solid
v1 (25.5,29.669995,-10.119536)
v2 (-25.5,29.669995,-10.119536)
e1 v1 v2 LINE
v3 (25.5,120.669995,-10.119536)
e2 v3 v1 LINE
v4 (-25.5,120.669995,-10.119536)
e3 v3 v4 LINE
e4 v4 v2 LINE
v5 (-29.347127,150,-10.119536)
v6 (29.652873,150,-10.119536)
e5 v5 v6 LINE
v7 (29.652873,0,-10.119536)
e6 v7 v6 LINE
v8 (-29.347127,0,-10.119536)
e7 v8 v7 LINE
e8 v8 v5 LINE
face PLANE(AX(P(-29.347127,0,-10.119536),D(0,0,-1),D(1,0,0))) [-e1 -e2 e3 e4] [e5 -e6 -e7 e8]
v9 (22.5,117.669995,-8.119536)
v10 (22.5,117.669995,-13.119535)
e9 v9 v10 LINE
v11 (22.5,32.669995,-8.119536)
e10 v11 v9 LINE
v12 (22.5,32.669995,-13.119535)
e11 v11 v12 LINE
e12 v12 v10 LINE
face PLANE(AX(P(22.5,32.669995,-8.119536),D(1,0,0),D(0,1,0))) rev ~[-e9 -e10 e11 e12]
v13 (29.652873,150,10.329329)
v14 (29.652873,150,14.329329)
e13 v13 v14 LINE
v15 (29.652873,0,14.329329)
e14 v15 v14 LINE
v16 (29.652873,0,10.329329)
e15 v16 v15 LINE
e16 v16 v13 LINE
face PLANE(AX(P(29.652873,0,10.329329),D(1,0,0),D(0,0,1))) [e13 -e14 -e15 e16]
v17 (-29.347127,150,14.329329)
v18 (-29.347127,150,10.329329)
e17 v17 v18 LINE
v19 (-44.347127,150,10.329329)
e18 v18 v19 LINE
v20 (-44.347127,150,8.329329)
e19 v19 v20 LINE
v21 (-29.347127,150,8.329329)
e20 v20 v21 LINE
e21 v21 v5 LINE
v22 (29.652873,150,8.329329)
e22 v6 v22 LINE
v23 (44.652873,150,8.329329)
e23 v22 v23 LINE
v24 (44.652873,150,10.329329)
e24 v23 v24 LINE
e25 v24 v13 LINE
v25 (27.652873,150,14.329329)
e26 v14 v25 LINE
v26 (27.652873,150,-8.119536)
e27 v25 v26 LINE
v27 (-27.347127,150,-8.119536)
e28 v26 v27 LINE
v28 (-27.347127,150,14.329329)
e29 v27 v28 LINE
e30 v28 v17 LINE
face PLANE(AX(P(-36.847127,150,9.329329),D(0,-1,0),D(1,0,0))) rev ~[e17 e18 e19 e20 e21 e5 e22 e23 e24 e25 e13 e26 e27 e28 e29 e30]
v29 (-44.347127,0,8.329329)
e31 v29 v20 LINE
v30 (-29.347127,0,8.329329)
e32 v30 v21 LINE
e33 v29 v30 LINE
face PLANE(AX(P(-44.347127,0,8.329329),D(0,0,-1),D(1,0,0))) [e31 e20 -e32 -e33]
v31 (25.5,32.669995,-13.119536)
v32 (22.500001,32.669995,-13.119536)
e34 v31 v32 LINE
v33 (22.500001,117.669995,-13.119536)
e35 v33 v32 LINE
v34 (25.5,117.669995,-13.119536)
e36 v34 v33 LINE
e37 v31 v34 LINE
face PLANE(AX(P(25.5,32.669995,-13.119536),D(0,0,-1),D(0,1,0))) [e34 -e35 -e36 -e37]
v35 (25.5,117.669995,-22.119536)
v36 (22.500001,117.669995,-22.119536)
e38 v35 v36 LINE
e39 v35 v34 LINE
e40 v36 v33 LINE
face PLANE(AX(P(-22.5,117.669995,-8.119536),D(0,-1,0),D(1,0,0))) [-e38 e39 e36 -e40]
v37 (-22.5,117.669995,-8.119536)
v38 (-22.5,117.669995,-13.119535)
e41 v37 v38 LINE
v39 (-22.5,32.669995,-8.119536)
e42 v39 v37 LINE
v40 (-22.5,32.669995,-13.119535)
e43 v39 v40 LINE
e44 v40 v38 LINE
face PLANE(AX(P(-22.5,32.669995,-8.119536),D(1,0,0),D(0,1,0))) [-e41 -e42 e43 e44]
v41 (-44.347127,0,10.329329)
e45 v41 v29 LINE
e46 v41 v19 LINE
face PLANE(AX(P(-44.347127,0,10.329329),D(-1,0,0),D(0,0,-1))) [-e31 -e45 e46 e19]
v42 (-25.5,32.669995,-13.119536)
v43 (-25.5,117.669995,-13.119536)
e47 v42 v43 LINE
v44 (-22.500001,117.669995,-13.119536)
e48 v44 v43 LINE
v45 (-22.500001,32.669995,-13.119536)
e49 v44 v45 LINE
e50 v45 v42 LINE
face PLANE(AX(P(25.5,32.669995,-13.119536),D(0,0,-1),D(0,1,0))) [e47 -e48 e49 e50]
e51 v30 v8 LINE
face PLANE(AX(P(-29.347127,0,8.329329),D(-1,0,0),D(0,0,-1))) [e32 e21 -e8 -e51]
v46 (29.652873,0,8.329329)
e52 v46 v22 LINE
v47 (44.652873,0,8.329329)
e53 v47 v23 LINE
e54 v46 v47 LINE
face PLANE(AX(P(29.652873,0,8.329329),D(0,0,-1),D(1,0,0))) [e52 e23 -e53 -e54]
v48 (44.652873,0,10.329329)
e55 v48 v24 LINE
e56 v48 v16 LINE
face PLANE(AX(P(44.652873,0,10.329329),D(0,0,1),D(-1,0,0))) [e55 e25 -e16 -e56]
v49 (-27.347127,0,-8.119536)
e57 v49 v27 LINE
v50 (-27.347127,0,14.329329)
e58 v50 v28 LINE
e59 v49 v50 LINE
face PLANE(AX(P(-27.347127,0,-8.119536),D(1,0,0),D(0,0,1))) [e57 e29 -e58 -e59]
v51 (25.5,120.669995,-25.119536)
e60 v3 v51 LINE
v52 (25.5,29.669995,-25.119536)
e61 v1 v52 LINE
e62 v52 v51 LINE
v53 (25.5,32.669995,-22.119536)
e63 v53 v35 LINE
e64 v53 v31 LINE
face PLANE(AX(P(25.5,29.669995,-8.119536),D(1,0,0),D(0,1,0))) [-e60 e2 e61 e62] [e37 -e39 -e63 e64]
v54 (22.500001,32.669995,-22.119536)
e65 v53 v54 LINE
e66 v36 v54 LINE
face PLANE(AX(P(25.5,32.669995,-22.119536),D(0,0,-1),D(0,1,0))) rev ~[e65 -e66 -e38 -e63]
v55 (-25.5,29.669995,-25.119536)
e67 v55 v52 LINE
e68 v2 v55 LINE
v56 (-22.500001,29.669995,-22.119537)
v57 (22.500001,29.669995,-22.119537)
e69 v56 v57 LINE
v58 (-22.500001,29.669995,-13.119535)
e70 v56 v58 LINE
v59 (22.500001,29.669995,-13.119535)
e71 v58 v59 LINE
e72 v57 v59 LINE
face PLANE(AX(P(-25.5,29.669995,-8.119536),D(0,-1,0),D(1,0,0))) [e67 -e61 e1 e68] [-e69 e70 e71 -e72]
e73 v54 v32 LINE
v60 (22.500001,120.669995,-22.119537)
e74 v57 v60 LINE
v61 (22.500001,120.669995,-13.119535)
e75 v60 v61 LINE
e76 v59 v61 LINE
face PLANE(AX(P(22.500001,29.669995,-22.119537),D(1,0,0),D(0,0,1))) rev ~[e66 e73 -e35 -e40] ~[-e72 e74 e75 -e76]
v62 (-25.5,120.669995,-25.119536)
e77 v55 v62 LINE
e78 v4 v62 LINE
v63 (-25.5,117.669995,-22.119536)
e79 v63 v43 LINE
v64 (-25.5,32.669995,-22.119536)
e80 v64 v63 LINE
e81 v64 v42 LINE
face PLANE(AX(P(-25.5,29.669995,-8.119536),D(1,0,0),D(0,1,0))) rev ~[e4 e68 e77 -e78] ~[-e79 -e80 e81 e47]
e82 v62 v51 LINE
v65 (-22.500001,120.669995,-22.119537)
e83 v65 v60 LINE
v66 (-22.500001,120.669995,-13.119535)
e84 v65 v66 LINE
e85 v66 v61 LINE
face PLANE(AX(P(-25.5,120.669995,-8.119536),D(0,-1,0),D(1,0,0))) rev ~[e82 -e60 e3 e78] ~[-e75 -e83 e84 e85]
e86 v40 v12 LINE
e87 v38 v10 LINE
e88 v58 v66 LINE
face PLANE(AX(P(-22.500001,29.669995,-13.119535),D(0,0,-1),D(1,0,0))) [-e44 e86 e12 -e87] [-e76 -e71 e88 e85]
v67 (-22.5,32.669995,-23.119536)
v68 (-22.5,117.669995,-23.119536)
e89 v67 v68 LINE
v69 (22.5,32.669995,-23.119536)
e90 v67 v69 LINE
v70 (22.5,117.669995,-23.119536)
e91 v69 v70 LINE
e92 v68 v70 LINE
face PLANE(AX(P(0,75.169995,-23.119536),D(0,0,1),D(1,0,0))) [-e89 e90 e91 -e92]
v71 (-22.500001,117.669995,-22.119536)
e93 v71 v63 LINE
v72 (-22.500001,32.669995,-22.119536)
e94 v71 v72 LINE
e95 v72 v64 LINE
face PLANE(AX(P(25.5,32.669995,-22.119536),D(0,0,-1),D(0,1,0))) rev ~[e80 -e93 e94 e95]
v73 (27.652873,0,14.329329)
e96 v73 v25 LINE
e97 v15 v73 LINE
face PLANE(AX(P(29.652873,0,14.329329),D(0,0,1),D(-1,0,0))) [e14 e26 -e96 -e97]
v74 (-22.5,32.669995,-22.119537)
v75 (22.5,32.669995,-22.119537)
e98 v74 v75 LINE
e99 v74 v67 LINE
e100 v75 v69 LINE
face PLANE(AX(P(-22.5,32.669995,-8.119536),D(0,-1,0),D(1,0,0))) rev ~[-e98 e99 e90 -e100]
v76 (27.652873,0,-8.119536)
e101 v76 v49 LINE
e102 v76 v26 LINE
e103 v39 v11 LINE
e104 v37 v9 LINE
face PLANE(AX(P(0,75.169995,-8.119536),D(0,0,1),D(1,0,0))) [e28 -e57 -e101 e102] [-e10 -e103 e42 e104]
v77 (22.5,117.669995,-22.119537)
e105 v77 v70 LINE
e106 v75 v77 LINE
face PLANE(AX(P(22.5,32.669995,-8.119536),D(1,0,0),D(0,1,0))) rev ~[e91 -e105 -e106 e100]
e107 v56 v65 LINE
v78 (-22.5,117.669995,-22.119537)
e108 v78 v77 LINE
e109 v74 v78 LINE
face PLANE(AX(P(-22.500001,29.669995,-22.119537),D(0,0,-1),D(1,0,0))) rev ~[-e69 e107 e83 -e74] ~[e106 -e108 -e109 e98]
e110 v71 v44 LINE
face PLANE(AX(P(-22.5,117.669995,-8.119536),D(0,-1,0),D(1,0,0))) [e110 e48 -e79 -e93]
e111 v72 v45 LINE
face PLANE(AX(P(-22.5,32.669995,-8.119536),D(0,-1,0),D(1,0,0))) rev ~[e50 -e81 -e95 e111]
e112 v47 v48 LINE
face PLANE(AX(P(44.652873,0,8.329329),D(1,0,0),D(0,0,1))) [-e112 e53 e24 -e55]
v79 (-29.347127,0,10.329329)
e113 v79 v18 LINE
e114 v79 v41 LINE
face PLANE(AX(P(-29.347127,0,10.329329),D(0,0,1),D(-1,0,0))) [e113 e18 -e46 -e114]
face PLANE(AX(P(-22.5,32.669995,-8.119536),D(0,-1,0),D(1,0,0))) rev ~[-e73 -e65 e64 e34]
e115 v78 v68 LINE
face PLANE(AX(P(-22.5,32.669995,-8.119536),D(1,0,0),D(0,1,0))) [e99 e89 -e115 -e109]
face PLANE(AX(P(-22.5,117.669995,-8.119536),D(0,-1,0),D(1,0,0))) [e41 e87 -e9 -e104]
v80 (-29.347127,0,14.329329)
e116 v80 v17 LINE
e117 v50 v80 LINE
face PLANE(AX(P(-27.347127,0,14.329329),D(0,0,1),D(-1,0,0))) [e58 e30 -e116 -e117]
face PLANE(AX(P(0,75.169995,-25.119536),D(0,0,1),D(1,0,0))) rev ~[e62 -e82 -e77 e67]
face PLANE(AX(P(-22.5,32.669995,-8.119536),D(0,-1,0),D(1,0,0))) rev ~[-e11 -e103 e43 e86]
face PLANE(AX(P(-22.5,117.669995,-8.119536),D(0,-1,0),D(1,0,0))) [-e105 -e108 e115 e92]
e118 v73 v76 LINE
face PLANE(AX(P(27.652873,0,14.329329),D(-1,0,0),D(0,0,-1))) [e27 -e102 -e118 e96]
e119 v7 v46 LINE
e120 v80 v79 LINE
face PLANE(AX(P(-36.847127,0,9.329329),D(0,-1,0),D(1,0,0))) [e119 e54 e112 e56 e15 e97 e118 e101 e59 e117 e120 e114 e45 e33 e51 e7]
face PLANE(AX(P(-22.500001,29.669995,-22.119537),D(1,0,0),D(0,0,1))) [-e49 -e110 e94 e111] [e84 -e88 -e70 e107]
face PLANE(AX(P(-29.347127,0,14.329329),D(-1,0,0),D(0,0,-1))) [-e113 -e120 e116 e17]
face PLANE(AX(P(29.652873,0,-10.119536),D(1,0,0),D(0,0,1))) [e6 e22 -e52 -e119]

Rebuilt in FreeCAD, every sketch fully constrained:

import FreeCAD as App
import Part
import Sketcher
Q = App.Units.Quantity


def add_polygon(sketch, points):
    """Adds a closed chain of lines whose ends are joined by coincident constraints."""
    first, n = sketch.GeometryCount, len(points)
    for a, b in zip(points, points[1:] + points[:1]):
        sketch.addGeometry(Part.LineSegment(App.Vector(*a, 0), App.Vector(*b, 0)), False)
    for i in range(n):
        sketch.addConstraint(Sketcher.Constraint("Coincident", first + i, 2, first + (i + 1) % n, 1))

doc = App.newDocument("Part")
body = doc.addObject("PartDesign::Body", "Body")

sketch1 = body.newObject("Sketcher::SketchObject", "Sketch")
sketch1.AttachmentSupport = (doc.getObject("XZ_Plane"), [""])
sketch1.MapMode = "FlatFace"
add_polygon(sketch1, [(-44.3, 8.3), (-29.3, 8.3), (-29.3, -10.1), (29.7, -10.1), (29.7, 8.3), (44.7, 8.3), (44.7, 10.3), (29.7, 10.3), (29.7, 14.3), (27.7, 14.3), (27.7, -8.1), (-27.3, -8.1), (-27.3, 14.3), (-29.3, 14.3), (-29.3, 10.3), (-44.3, 10.3)])
sketch1.addConstraint([
    Sketcher.Constraint("Horizontal", 0),
    Sketcher.Constraint("Vertical", 1),
    Sketcher.Constraint("Horizontal", 2),
    Sketcher.Constraint("Vertical", 3),
    Sketcher.Constraint("Horizontal", 4),
    Sketcher.Constraint("Vertical", 5),
    Sketcher.Constraint("Horizontal", 6),
    Sketcher.Constraint("Vertical", 7),
    Sketcher.Constraint("Horizontal", 8),
    Sketcher.Constraint("Vertical", 9),
    Sketcher.Constraint("Horizontal", 10),
    Sketcher.Constraint("Vertical", 11),
    Sketcher.Constraint("Horizontal", 12),
    Sketcher.Constraint("Vertical", 13),
    Sketcher.Constraint("Horizontal", 14),
    Sketcher.Constraint("Vertical", 15),
    Sketcher.Constraint("Horizontal", 0, 2, 3, 2),
    Sketcher.Constraint("Horizontal", 8, 2, 11, 2),
    Sketcher.Constraint("Horizontal", 6, 2, 13, 2),
    Sketcher.Constraint("Vertical", 3, 2, 6, 2),
    Sketcher.Constraint("Vertical", 1, 2, 12, 2),
    Sketcher.Constraint("Equal", 0, 4),
    Sketcher.Constraint("Equal", 8, 12),
    Sketcher.Constraint("Equal", 12, 5),
    Sketcher.Constraint("DistanceX", 0, 1, 0, 2, Q("15 mm")),
    Sketcher.Constraint("DistanceX", 2, 1, 2, 2, Q("59 mm")),
    Sketcher.Constraint("DistanceX", 8, 2, 8, 1, Q("2 mm")),
    Sketcher.Constraint("DistanceY", 7, 1, 7, 2, Q("4 mm")),
    Sketcher.Constraint("DistanceY", 2, 2, 9, 2, Q("2 mm")),
    Sketcher.Constraint("DistanceY", 1, 2, 1, 1, Q("18.448865 mm")),
    Sketcher.Constraint("DistanceY", -1, 1, 0, 2, Q("8.329329 mm")),
    Sketcher.Constraint("DistanceX", 0, 2, -1, 1, Q("29.347127 mm")),
])
pad1 = body.newObject("PartDesign::Pad", "Pad")
pad1.Profile = sketch1
pad1.Length = 150
pad1.Reversed = True

sketch2 = body.newObject("Sketcher::SketchObject", "Sketch001")
sketch2.AttachmentSupport = (doc.getObject("XY_Plane"), [""])
sketch2.MapMode = "FlatFace"
sketch2.AttachmentOffset = App.Placement(App.Vector(0, 0, -8.119536), App.Rotation())
add_polygon(sketch2, [(-26, 121), (-26, 30), (26, 30), (26, 121)])
sketch2.addConstraint([
    Sketcher.Constraint("Vertical", 0),
    Sketcher.Constraint("Horizontal", 1),
    Sketcher.Constraint("Vertical", 2),
    Sketcher.Constraint("Horizontal", 3),
    Sketcher.Constraint("DistanceX", 1, 1, 1, 2, Q("51 mm")),
    Sketcher.Constraint("DistanceY", 0, 2, 0, 1, Q("91 mm")),
    Sketcher.Constraint("DistanceX", 0, 2, -1, 1, Q("25.5 mm")),
    Sketcher.Constraint("DistanceY", -1, 1, 0, 2, Q("29.669995 mm")),
])
pad2 = body.newObject("PartDesign::Pad", "Pad001")
pad2.Profile = sketch2
pad2.Length = 17
pad2.Reversed = True

sketch3 = body.newObject("Sketcher::SketchObject", "Sketch002")
sketch3.AttachmentSupport = (doc.getObject("XY_Plane"), [""])
sketch3.MapMode = "FlatFace"
sketch3.AttachmentOffset = App.Placement(App.Vector(0, 0, -8.119536), App.Rotation())
add_polygon(sketch3, [(-22, 118), (-22, 33), (22, 33), (22, 118)])
sketch3.addConstraint([
    Sketcher.Constraint("Vertical", 0),
    Sketcher.Constraint("Horizontal", 1),
    Sketcher.Constraint("Vertical", 2),
    Sketcher.Constraint("Horizontal", 3),
    Sketcher.Constraint("DistanceX", 1, 1, 1, 2, Q("45 mm")),
    Sketcher.Constraint("DistanceY", 0, 2, 0, 1, Q("85 mm")),
    Sketcher.Constraint("DistanceX", 0, 2, -1, 1, Q("22.5 mm")),
    Sketcher.Constraint("DistanceY", -1, 1, 0, 2, Q("32.669995 mm")),
])
pocket1 = body.newObject("PartDesign::Pocket", "Pocket")
pocket1.Profile = sketch3
pocket1.Length = 15

sketch4 = body.newObject("Sketcher::SketchObject", "Sketch003")
sketch4.AttachmentSupport = (doc.getObject("YZ_Plane"), [""])
sketch4.MapMode = "FlatFace"
sketch4.AttachmentOffset = App.Placement(App.Vector(0, 0, 25.5), App.Rotation())
add_polygon(sketch4, [(33, -13), (33, -22), (118, -22), (118, -13)])
sketch4.addConstraint([
    Sketcher.Constraint("Vertical", 0),
    Sketcher.Constraint("Horizontal", 1),
    Sketcher.Constraint("Vertical", 2),
    Sketcher.Constraint("Horizontal", 3),
    Sketcher.Constraint("DistanceX", 1, 1, 1, 2, Q("85 mm")),
    Sketcher.Constraint("DistanceY", 0, 2, 0, 1, Q("9 mm")),
    Sketcher.Constraint("DistanceX", -1, 1, 0, 2, Q("32.669995 mm")),
    Sketcher.Constraint("DistanceY", 0, 2, -1, 1, Q("22.119536 mm")),
])
pocket2 = body.newObject("PartDesign::Pocket", "Pocket001")
pocket2.Profile = sketch4
pocket2.Length = 75

sketch5 = body.newObject("Sketcher::SketchObject", "Sketch004")
sketch5.AttachmentSupport = (doc.getObject("XZ_Plane"), [""])
sketch5.MapMode = "FlatFace"
sketch5.AttachmentOffset = App.Placement(App.Vector(0, 0, -29.669995), App.Rotation())
add_polygon(sketch5, [(-23, -13), (-23, -22), (23, -22), (23, -13)])
sketch5.addConstraint([
    Sketcher.Constraint("Vertical", 0),
    Sketcher.Constraint("Horizontal", 1),
    Sketcher.Constraint("Vertical", 2),
    Sketcher.Constraint("Horizontal", 3),
    Sketcher.Constraint("DistanceX", 1, 1, 1, 2, Q("45.000002 mm")),
    Sketcher.Constraint("DistanceY", 0, 2, 0, 1, Q("9.000002 mm")),
    Sketcher.Constraint("DistanceX", 0, 2, -1, 1, Q("22.500001 mm")),
    Sketcher.Constraint("DistanceY", 0, 2, -1, 1, Q("22.119537 mm")),
])
pocket3 = body.newObject("PartDesign::Pocket", "Pocket002")
pocket3.Profile = sketch5
pocket3.Length = 95

doc.recompute()
